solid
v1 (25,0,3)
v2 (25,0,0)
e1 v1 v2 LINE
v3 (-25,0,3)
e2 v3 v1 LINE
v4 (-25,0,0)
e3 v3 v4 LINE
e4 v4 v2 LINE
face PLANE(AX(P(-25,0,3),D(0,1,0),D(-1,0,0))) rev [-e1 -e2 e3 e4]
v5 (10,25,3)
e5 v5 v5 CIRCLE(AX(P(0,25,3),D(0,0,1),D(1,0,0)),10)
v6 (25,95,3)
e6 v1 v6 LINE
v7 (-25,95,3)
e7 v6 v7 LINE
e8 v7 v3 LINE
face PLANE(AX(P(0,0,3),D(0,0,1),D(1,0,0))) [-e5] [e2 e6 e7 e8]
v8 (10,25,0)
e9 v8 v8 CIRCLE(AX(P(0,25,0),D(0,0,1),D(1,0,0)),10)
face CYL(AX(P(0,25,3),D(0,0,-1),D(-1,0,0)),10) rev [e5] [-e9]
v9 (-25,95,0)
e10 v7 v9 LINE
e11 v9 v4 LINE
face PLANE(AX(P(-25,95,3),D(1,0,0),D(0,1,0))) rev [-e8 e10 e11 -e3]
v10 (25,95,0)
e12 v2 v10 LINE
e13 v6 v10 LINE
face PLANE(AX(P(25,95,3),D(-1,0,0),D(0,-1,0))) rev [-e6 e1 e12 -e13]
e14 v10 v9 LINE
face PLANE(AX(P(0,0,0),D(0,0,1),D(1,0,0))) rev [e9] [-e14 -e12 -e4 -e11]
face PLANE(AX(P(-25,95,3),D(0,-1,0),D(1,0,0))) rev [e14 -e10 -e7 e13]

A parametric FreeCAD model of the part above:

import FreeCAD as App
import Part
import Sketcher

V = App.Vector


def add_polygon(sketch, points):
    """Adds a closed chain of lines whose ends are joined by coincident constraints."""
    first, n = sketch.GeometryCount, len(points)
    for a, b in zip(points, points[1:] + points[:1]):
        sketch.addGeometry(Part.LineSegment(App.Vector(*a, 0), App.Vector(*b, 0)), False)
    for i in range(n):
        sketch.addConstraint(Sketcher.Constraint("Coincident", first + i, 2, first + (i + 1) % n, 1))

doc = App.newDocument("Part")
params = doc.addObject("Spreadsheet::Sheet", "Params")
for row, (alias, value) in enumerate([
    ("sketch1_diameter", "20 mm"),
    ("sketch1_width", "50 mm"),
    ("sketch1_height", "95 mm"),
    ("pad1_length", "3 mm"),
], start=1):
    params.set(f"A{row}", alias)
    params.set(f"B{row}", "=" + value)
    params.setAlias(f"B{row}", alias)

body = doc.addObject("PartDesign::Body", "Body")

# Sketch on XY plane
sketch1 = body.newObject("Sketcher::SketchObject", "Sketch")
sketch1.AttachmentSupport = (doc.getObject("XY_Plane"), [""])
sketch1.MapMode = "FlatFace"
add_polygon(sketch1, [(-25, 95), (-25, 0), (25, 0), (25, 95)])  # lines 0-3
sketch1.addGeometry(Part.Circle(V(0, 25, 0), V(0, 0, 1), 10), False)  # 4
sketch1.addConstraint([
    Sketcher.Constraint("Vertical", 0),
    Sketcher.Constraint("Horizontal", 1),
    Sketcher.Constraint("Vertical", 2),
    Sketcher.Constraint("Horizontal", 3),
    Sketcher.Constraint("Symmetric", 0, 2, 1, 2, -1, 1),
    Sketcher.Constraint("PointOnObject", 4, 3, -2),
    Sketcher.Constraint("Diameter", 4, 20.0),
    Sketcher.Constraint("DistanceX", 1, 1, 1, 2, 50.0),
    Sketcher.Constraint("DistanceY", 0, 2, 0, 1, 95.0),
    Sketcher.Constraint("DistanceY", -1, 1, 4, 3, 25.0),
])
sketch1.setExpression("Constraints[10]", "Params.sketch1_diameter")
sketch1.setExpression("Constraints[11]", "Params.sketch1_width")
sketch1.setExpression("Constraints[12]", "Params.sketch1_height")
pad1 = body.newObject("PartDesign::Pad", "Pad")
pad1.Profile = sketch1
pad1.setExpression("Length", "Params.pad1_length")

doc.recompute()
